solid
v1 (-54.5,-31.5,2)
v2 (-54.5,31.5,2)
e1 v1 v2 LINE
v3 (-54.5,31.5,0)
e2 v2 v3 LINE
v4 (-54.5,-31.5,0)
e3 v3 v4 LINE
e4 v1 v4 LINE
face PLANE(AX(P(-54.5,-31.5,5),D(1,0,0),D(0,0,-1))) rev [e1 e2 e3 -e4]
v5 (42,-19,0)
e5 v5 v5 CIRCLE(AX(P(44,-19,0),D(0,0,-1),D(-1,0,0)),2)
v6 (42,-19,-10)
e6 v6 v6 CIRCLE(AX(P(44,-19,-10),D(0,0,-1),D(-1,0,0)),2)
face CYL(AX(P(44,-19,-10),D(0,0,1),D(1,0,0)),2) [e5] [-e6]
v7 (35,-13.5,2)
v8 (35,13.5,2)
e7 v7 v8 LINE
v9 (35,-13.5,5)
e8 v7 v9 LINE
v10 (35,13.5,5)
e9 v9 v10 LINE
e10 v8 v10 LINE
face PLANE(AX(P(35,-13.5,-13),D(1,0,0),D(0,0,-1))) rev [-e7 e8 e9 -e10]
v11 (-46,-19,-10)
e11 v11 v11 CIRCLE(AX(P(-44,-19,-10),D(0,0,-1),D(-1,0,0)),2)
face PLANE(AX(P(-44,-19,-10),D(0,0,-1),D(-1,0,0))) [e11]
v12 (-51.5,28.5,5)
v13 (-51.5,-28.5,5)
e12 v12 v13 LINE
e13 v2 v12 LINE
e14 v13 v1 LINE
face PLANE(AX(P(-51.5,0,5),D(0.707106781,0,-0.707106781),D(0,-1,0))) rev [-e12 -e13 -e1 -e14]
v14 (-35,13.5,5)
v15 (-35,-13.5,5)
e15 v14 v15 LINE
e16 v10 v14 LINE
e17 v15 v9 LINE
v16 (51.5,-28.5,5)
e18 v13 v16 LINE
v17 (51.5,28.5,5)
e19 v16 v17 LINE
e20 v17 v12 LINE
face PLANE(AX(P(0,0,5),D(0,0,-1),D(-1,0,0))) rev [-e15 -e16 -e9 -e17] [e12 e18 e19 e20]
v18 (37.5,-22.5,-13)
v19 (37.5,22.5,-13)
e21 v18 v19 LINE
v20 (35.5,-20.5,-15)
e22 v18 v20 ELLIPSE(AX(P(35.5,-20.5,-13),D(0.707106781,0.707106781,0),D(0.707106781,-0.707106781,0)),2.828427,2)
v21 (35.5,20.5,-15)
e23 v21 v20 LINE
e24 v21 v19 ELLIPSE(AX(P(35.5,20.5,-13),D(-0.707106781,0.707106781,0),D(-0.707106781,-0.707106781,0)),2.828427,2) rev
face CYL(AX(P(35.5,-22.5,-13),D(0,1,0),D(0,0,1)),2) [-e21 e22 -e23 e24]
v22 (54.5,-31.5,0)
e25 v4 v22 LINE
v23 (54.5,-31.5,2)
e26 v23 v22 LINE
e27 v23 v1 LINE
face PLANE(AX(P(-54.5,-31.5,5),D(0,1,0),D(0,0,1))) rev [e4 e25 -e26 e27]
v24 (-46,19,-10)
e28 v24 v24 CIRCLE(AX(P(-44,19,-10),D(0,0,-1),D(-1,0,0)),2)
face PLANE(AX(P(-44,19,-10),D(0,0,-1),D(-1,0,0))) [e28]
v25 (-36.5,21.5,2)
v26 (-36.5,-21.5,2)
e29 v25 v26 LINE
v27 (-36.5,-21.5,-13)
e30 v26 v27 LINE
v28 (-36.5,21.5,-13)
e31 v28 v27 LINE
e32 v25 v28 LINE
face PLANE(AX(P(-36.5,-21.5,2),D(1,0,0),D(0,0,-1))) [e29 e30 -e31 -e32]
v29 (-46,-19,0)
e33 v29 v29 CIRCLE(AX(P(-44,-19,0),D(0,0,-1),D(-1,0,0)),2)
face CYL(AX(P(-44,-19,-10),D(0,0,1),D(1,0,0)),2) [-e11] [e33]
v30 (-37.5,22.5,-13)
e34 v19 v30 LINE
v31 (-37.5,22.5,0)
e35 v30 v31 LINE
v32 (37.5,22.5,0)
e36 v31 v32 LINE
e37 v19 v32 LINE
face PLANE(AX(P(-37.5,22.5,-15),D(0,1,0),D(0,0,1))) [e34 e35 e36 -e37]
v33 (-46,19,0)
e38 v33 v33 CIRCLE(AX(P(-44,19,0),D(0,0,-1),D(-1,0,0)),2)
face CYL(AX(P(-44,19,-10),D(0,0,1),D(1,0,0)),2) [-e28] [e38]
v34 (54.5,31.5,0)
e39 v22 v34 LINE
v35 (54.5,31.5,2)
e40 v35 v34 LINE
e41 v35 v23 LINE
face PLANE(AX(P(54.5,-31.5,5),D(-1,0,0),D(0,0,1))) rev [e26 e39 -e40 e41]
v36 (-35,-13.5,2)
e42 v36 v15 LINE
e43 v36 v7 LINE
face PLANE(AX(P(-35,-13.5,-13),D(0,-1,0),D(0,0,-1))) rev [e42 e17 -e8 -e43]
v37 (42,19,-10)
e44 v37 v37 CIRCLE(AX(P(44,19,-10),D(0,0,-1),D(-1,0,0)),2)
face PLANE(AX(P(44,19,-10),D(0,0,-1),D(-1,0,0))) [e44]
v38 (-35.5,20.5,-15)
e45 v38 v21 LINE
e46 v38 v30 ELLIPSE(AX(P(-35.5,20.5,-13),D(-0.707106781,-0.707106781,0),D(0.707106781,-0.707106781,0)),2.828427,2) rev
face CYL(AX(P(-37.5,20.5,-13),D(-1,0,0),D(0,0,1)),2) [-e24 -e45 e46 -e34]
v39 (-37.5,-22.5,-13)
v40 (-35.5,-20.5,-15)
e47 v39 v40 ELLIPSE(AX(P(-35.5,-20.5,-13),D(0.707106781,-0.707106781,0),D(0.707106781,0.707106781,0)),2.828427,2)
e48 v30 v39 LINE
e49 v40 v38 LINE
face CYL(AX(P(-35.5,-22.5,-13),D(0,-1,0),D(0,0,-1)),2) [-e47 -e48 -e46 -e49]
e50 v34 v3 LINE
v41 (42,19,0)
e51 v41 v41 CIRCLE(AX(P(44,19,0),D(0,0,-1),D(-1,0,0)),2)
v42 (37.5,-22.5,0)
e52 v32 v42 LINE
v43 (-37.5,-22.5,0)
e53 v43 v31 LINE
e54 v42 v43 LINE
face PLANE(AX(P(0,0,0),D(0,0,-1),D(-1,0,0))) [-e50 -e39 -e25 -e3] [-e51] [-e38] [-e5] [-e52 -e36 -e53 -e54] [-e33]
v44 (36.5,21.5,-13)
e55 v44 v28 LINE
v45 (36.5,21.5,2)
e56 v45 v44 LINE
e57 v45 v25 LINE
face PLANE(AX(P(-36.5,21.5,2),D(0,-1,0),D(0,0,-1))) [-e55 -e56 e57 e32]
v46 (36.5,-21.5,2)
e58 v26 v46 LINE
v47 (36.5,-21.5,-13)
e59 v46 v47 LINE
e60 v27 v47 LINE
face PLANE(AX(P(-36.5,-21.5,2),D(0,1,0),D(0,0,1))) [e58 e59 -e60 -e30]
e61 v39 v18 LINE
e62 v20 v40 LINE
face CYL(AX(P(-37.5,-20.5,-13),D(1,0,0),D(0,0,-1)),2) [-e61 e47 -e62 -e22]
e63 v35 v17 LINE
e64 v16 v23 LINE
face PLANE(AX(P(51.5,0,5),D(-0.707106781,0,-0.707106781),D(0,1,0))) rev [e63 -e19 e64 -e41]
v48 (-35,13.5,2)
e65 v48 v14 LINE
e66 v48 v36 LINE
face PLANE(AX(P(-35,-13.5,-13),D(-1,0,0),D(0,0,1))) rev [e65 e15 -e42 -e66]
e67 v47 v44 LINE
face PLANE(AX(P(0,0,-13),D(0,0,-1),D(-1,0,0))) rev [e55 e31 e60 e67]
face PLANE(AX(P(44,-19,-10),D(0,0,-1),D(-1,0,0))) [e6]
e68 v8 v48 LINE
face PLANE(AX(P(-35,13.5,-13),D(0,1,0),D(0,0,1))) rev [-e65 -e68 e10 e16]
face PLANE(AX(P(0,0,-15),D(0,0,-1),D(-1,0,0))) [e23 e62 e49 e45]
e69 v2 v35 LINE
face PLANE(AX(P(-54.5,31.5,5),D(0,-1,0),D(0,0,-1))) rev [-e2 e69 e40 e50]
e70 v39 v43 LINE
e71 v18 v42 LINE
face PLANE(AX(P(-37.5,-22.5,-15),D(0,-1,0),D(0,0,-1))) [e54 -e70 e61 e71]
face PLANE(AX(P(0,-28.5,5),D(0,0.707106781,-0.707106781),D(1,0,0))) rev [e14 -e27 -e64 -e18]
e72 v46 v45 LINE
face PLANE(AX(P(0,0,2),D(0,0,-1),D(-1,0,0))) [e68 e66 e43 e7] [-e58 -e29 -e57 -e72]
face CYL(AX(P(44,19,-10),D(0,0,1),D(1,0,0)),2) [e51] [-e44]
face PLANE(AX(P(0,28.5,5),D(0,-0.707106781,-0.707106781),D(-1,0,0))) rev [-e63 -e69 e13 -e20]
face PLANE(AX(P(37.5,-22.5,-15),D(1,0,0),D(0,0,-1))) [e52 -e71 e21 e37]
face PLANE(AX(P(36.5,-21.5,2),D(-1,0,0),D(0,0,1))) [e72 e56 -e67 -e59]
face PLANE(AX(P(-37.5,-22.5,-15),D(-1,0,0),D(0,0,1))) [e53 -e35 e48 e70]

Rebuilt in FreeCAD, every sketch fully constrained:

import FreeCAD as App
import Part
import Sketcher

V = App.Vector


def edges_at(feature, points):
    """Names of the edges that pass closest to the given points."""
    edges = feature.Shape.Edges
    near = lambda p: min(range(len(edges)), key=lambda i: edges[i].distToShape(Part.Vertex(*p))[0])
    return sorted({f"Edge{near(p) + 1}" for p in points})

doc = App.newDocument("Part")
body = doc.addObject("PartDesign::Body", "Body")

# Sketch on XY plane
sketch1 = body.newObject("Sketcher::SketchObject", "Sketch")
sketch1.AttachmentSupport = (doc.getObject("XY_Plane"), [""])
sketch1.MapMode = "FlatFace"
sketch1.addGeometry(Part.LineSegment(V(-54.5, 31.5, 0), V(-54.5, -31.5, 0)), False)
sketch1.addGeometry(Part.LineSegment(V(-54.5, -31.5, 0), V(54.5, -31.5, 0)), False)
sketch1.addGeometry(Part.LineSegment(V(54.5, -31.5, 0), V(54.5, 31.5, 0)), False)
sketch1.addGeometry(Part.LineSegment(V(54.5, 31.5, 0), V(-54.5, 31.5, 0)), False)
sketch1.addConstraint(Sketcher.Constraint("Coincident", 0, 2, 1, 1))
sketch1.addConstraint(Sketcher.Constraint("Coincident", 1, 2, 2, 1))
sketch1.addConstraint(Sketcher.Constraint("Coincident", 2, 2, 3, 1))
sketch1.addConstraint(Sketcher.Constraint("Coincident", 3, 2, 0, 1))
sketch1.addConstraint(Sketcher.Constraint("Vertical", 0))
sketch1.addConstraint(Sketcher.Constraint("Horizontal", 1))
sketch1.addConstraint(Sketcher.Constraint("Vertical", 2))
sketch1.addConstraint(Sketcher.Constraint("Horizontal", 3))
sketch1.addConstraint(Sketcher.Constraint("Symmetric", 0, 2, 2, 2, -1, 1))
sketch1.addConstraint(Sketcher.Constraint("DistanceX", 1, 1, 1, 2, 109.0))
sketch1.addConstraint(Sketcher.Constraint("DistanceY", 0, 2, 0, 1, 63.0))
pad1 = body.newObject("PartDesign::Pad", "Pad")
pad1.Profile = sketch1
pad1.Length = 5
doc.recompute()

chamfer = body.newObject("PartDesign::Chamfer", "Chamfer")
chamfer.Base = (pad1, edges_at(pad1, [
    (-54.5, 0, 5),
    (0, -31.5, 5),
    (54.5, 0, 5),
    (0, 31.5, 5),
]))
chamfer.Size = 3

# Sketch on XY plane
sketch2 = body.newObject("Sketcher::SketchObject", "Sketch001")
sketch2.AttachmentSupport = (doc.getObject("XY_Plane"), [""])
sketch2.MapMode = "FlatFace"
sketch2.AttachmentOffset = App.Placement(V(0, 0, 5), App.Rotation())
sketch2.addGeometry(Part.LineSegment(V(-37.5, 22.5, 0), V(-37.5, -22.5, 0)), False)
sketch2.addGeometry(Part.LineSegment(V(-37.5, -22.5, 0), V(37.5, -22.5, 0)), False)
sketch2.addGeometry(Part.LineSegment(V(37.5, -22.5, 0), V(37.5, 22.5, 0)), False)
sketch2.addGeometry(Part.LineSegment(V(37.5, 22.5, 0), V(-37.5, 22.5, 0)), False)
sketch2.addConstraint(Sketcher.Constraint("Coincident", 0, 2, 1, 1))
sketch2.addConstraint(Sketcher.Constraint("Coincident", 1, 2, 2, 1))
sketch2.addConstraint(Sketcher.Constraint("Coincident", 2, 2, 3, 1))
sketch2.addConstraint(Sketcher.Constraint("Coincident", 3, 2, 0, 1))
sketch2.addConstraint(Sketcher.Constraint("Vertical", 0))
sketch2.addConstraint(Sketcher.Constraint("Horizontal", 1))
sketch2.addConstraint(Sketcher.Constraint("Vertical", 2))
sketch2.addConstraint(Sketcher.Constraint("Horizontal", 3))
sketch2.addConstraint(Sketcher.Constraint("Symmetric", 0, 2, 2, 2, -1, 1))
sketch2.addConstraint(Sketcher.Constraint("DistanceX", 1, 1, 1, 2, 75.0))
sketch2.addConstraint(Sketcher.Constraint("DistanceY", 0, 2, 0, 1, 45.0))
pad2 = body.newObject("PartDesign::Pad", "Pad001")
pad2.Profile = sketch2
pad2.Length = 20
pad2.Reversed = True

# Sketch on XY plane
sketch3 = body.newObject("Sketcher::SketchObject", "Sketch002")
sketch3.AttachmentSupport = (doc.getObject("XY_Plane"), [""])
sketch3.MapMode = "FlatFace"
sketch3.AttachmentOffset = App.Placement(V(0, 0, 5), App.Rotation())
sketch3.addGeometry(Part.LineSegment(V(-35, 13.5, 0), V(-35, -13.5, 0)), False)
sketch3.addGeometry(Part.LineSegment(V(-35, -13.5, 0), V(35, -13.5, 0)), False)
sketch3.addGeometry(Part.LineSegment(V(35, -13.5, 0), V(35, 13.5, 0)), False)
sketch3.addGeometry(Part.LineSegment(V(35, 13.5, 0), V(-35, 13.5, 0)), False)
sketch3.addConstraint(Sketcher.Constraint("Coincident", 0, 2, 1, 1))
sketch3.addConstraint(Sketcher.Constraint("Coincident", 1, 2, 2, 1))
sketch3.addConstraint(Sketcher.Constraint("Coincident", 2, 2, 3, 1))
sketch3.addConstraint(Sketcher.Constraint("Coincident", 3, 2, 0, 1))
sketch3.addConstraint(Sketcher.Constraint("Vertical", 0))
sketch3.addConstraint(Sketcher.Constraint("Horizontal", 1))
sketch3.addConstraint(Sketcher.Constraint("Vertical", 2))
sketch3.addConstraint(Sketcher.Constraint("Horizontal", 3))
sketch3.addConstraint(Sketcher.Constraint("Symmetric", 0, 2, 2, 2, -1, 1))
sketch3.addConstraint(Sketcher.Constraint("DistanceX", 1, 1, 1, 2, 70.0))
sketch3.addConstraint(Sketcher.Constraint("DistanceY", 0, 2, 0, 1, 27.0))
pocket1 = body.newObject("PartDesign::Pocket", "Pocket")
pocket1.Profile = sketch3
pocket1.Length = 18

# Sketch on XY plane
sketch4 = body.newObject("Sketcher::SketchObject", "Sketch003")
sketch4.AttachmentSupport = (doc.getObject("XY_Plane"), [""])
sketch4.MapMode = "FlatFace"
sketch4.AttachmentOffset = App.Placement(V(0, 0, -13), App.Rotation())
sketch4.addGeometry(Part.LineSegment(V(-36.5, 21.5, 0), V(-36.5, -21.5, 0)), False)
sketch4.addGeometry(Part.LineSegment(V(-36.5, -21.5, 0), V(36.5, -21.5, 0)), False)
sketch4.addGeometry(Part.LineSegment(V(36.5, -21.5, 0), V(36.5, 21.5, 0)), False)
sketch4.addGeometry(Part.LineSegment(V(36.5, 21.5, 0), V(-36.5, 21.5, 0)), False)
sketch4.addConstraint(Sketcher.Constraint("Coincident", 0, 2, 1, 1))
sketch4.addConstraint(Sketcher.Constraint("Coincident", 1, 2, 2, 1))
sketch4.addConstraint(Sketcher.Constraint("Coincident", 2, 2, 3, 1))
sketch4.addConstraint(Sketcher.Constraint("Coincident", 3, 2, 0, 1))
sketch4.addConstraint(Sketcher.Constraint("Vertical", 0))
sketch4.addConstraint(Sketcher.Constraint("Horizontal", 1))
sketch4.addConstraint(Sketcher.Constraint("Vertical", 2))
sketch4.addConstraint(Sketcher.Constraint("Horizontal", 3))
sketch4.addConstraint(Sketcher.Constraint("Symmetric", 0, 2, 2, 2, -1, 1))
sketch4.addConstraint(Sketcher.Constraint("DistanceX", 1, 1, 1, 2, 73.0))
sketch4.addConstraint(Sketcher.Constraint("DistanceY", 0, 2, 0, 1, 43.0))
pocket2 = body.newObject("PartDesign::Pocket", "Pocket001")
pocket2.Profile = sketch4
pocket2.Length = 15
pocket2.Reversed = True

# Sketch on XY plane
sketch5 = body.newObject("Sketcher::SketchObject", "Sketch004")
sketch5.AttachmentSupport = (doc.getObject("XY_Plane"), [""])
sketch5.MapMode = "FlatFace"
sketch5.addGeometry(Part.Circle(V(-44, 19, 0), V(0, 0, 1), 2), False)
sketch5.addGeometry(Part.Circle(V(-44, -19, 0), V(0, 0, 1), 2), False)
sketch5.addGeometry(Part.Circle(V(44, -19, 0), V(0, 0, 1), 2), False)
sketch5.addGeometry(Part.Circle(V(44, 19, 0), V(0, 0, 1), 2), False)
sketch5.addConstraint(Sketcher.Constraint("Equal", 0, 1))
sketch5.addConstraint(Sketcher.Constraint("Equal", 1, 2))
sketch5.addConstraint(Sketcher.Constraint("Equal", 2, 3))
sketch5.addConstraint(Sketcher.Constraint("Symmetric", 0, 3, 2, 3, -1, 1))
sketch5.addConstraint(Sketcher.Constraint("Symmetric", 1, 3, 3, 3, -1, 1))
sketch5.addConstraint(Sketcher.Constraint("Symmetric", 1, 3, 2, 3, -2))
sketch5.addConstraint(Sketcher.Constraint("Diameter", 0, 4.0))
sketch5.addConstraint(Sketcher.Constraint("DistanceX", 0, 3, -1, 1, 44.0))
sketch5.addConstraint(Sketcher.Constraint("DistanceY", -1, 1, 0, 3, 19.0))
pad3 = body.newObject("PartDesign::Pad", "Pad002")
pad3.Profile = sketch5
pad3.Length = 10
pad3.Reversed = True
doc.recompute()

fillet = body.newObject("PartDesign::Fillet", "Fillet")
fillet.Base = (pad3, edges_at(pad3, [
    (37.5, 0, -15),
    (0, -22.5, -15),
    (-37.5, 0, -15),
    (0, 22.5, -15),
]))
fillet.Radius = 2

doc.recompute()
